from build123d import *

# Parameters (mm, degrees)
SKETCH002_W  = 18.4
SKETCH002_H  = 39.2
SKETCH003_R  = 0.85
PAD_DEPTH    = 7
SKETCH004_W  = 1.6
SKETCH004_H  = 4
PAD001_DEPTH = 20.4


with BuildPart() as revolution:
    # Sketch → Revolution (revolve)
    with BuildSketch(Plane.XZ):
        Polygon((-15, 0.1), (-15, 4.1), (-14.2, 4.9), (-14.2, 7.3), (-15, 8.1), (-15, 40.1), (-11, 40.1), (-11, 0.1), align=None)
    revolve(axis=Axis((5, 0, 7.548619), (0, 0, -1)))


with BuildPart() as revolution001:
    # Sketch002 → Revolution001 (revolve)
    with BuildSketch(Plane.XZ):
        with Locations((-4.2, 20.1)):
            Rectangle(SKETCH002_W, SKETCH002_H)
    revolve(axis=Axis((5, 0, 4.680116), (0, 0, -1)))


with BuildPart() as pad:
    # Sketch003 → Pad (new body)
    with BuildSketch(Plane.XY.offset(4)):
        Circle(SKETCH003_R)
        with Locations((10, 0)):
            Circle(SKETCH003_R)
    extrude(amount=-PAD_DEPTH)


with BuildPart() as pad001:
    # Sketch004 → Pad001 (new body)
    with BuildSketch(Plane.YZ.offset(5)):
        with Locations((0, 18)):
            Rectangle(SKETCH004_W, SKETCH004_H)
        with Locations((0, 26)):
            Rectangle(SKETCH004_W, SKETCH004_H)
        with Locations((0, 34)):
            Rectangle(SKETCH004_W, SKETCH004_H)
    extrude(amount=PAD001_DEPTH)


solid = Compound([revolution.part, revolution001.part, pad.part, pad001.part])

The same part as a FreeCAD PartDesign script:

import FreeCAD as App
import Part
import Sketcher
from FreeCAD import Vector
Q = App.Units.Quantity


def add_polygon(sketch, points):
    """Adds a closed chain of lines whose ends are joined by coincident constraints."""
    first, n = sketch.GeometryCount, len(points)
    for a, b in zip(points, points[1:] + points[:1]):
        sketch.addGeometry(Part.LineSegment(App.Vector(*a, 0), App.Vector(*b, 0)), False)
    for i in range(n):
        sketch.addConstraint(Sketcher.Constraint("Coincident", first + i, 2, first + (i + 1) % n, 1))

doc = App.newDocument("Part")
params = doc.addObject("Spreadsheet::Sheet", "Params")
for row, (alias, value) in enumerate([
    ("sketch1_width", "4 mm"),
    ("sketch1_height", "40 mm"),
    ("sketch1_height2", "32 mm"),
    ("sketch1_height3", "2.4 mm"),
    ("revolution_angle", "360 deg"),
    ("sketch2_width", "18.4 mm"),
    ("sketch2_height", "39.2 mm"),
    ("revolution2_angle", "360 deg"),
    ("sketch3_diameter", "1.7 mm"),
    ("pad1_length", "7 mm"),
    ("sketch4_height", "4 mm"),
    ("sketch4_width", "1.6 mm"),
    ("pad2_length", "20.4 mm"),
], start=1):
    params.set(f"A{row}", alias)
    params.set(f"B{row}", "=" + value)
    params.setAlias(f"B{row}", alias)

body = doc.addObject("PartDesign::Body", "Body")

# Sketch on XZ plane
sketch1 = body.newObject("Sketcher::SketchObject", "Sketch")
sketch1.AttachmentSupport = (doc.getObject("XZ_Plane"), [""])
sketch1.MapMode = "FlatFace"
add_polygon(sketch1, [(-15, 4.1), (-15, 0.1), (-11, 0.1), (-11, 40.1), (-15, 40.1), (-15, 8.1), (-14.2, 7.3), (-14.2, 4.9)])  # lines 0-7
sketch1.addGeometry(Part.LineSegment(Vector(5, 40.1, 0), Vector(5, 0.1, 0)), True)  # axis
sketch1.addConstraint([
    Sketcher.Constraint("Vertical", 0),
    Sketcher.Constraint("Horizontal", 1),
    Sketcher.Constraint("Vertical", 2),
    Sketcher.Constraint("Horizontal", 3),
    Sketcher.Constraint("Vertical", 4),
    Sketcher.Constraint("Vertical", 6),
    Sketcher.Constraint("Vertical", 8),
    Sketcher.Constraint("Perpendicular", 5, 7),
    Sketcher.Constraint("Horizontal", 3, 2, 8, 1),
    Sketcher.Constraint("Horizontal", 1, 2, 8, 2),
    Sketcher.Constraint("Vertical", 0, 2, 3, 2),
    Sketcher.Constraint("Equal", 3, 0),
    Sketcher.Constraint("Equal", 5, 7),
    Sketcher.Constraint("DistanceX", 1, 1, 1, 2, Q("4 mm")),
    Sketcher.Constraint("DistanceY", 2, 1, 2, 2, Q("40 mm")),
    Sketcher.Constraint("DistanceY", 4, 2, 4, 1, Q("32 mm")),
    Sketcher.Constraint("DistanceY", 6, 2, 6, 1, Q("2.4 mm")),
    Sketcher.Constraint("DistanceX", 0, 2, -1, 1, Q("15 mm")),
    Sketcher.Constraint("DistanceX", -1, 1, 8, 1, Q("5 mm")),
    Sketcher.Constraint("DistanceY", -1, 1, 0, 2, Q("0.1 mm")),
])
sketch1.setExpression("Constraints[21]", "Params.sketch1_width")
sketch1.setExpression("Constraints[22]", "Params.sketch1_height")
sketch1.setExpression("Constraints[23]", "Params.sketch1_height2")
sketch1.setExpression("Constraints[24]", "Params.sketch1_height3")
revolution = body.newObject("PartDesign::Revolution", "Revolution")
revolution.Profile = sketch1
revolution.ReferenceAxis = (sketch1, ["Axis0"])
revolution.setExpression("Angle", "Params.revolution_angle")
body2 = doc.addObject("PartDesign::Body", "Body001")

# Sketch on XZ plane
sketch2 = body2.newObject("Sketcher::SketchObject", "Sketch001")
sketch2.AttachmentSupport = (doc.getObject("XZ_Plane001"), [""])
sketch2.MapMode = "FlatFace"
add_polygon(sketch2, [(-13.4, 39.7), (-13.4, 0.5), (5, 0.5), (5, 39.7)])  # lines 0-3
sketch2.addGeometry(Part.LineSegment(Vector(5, 39.7, 0), Vector(5, 0.5, 0)), True)  # axis
sketch2.addConstraint([
    Sketcher.Constraint("Vertical", 0),
    Sketcher.Constraint("Horizontal", 1),
    Sketcher.Constraint("Vertical", 2),
    Sketcher.Constraint("Horizontal", 3),
    Sketcher.Constraint("Vertical", 4),
    Sketcher.Constraint("Coincident", 4, 1, 2, 2),
    Sketcher.Constraint("Horizontal", 0, 2, 4, 2),
    Sketcher.Constraint("DistanceX", 1, 1, 1, 2, Q("18.4 mm")),
    Sketcher.Constraint("DistanceY", 0, 2, 0, 1, Q("39.2 mm")),
    Sketcher.Constraint("DistanceX", -1, 1, 1, 2, Q("5 mm")),
    Sketcher.Constraint("DistanceY", -1, 1, 0, 2, Q("0.5 mm")),
])
sketch2.setExpression("Constraints[11]", "Params.sketch2_width")
sketch2.setExpression("Constraints[12]", "Params.sketch2_height")
revolution2 = body2.newObject("PartDesign::Revolution", "Revolution001")
revolution2.Profile = sketch2
revolution2.ReferenceAxis = (sketch2, ["Axis0"])
revolution2.setExpression("Angle", "Params.revolution2_angle")
body3 = doc.addObject("PartDesign::Body", "Body002")
body3.AllowCompound = True

# Sketch on XY plane
sketch3 = body3.newObject("Sketcher::SketchObject", "Sketch002")
sketch3.AttachmentSupport = (doc.getObject("XY_Plane002"), [""])
sketch3.MapMode = "FlatFace"
sketch3.AttachmentOffset = App.Placement(Vector(0, 0, 4), App.Rotation())
sketch3.addGeometry([
    Part.Circle(Vector(0, 0, 0), Vector(0, 0, 1), 0.85),
    Part.Circle(Vector(10, 0, 0), Vector(0, 0, 1), 0.85),
], False)
sketch3.addConstraint([
    Sketcher.Constraint("Coincident", 0, 3, -1, 1),
    Sketcher.Constraint("Equal", 0, 1),
    Sketcher.Constraint("PointOnObject", 1, 3, -1),
    Sketcher.Constraint("Diameter", 0, Q("1.7 mm")),
    Sketcher.Constraint("DistanceX", -1, 1, 1, 3, Q("10 mm")),
])
sketch3.setExpression("Constraints[3]", "Params.sketch3_diameter")
pad1 = body3.newObject("PartDesign::Pad", "Pad")
pad1.Profile = sketch3
pad1.setExpression("Length", "Params.pad1_length")
pad1.Reversed = True
body4 = doc.addObject("PartDesign::Body", "Body003")
body4.AllowCompound = True

# Sketch on YZ plane
sketch4 = body4.newObject("Sketcher::SketchObject", "Sketch003")
sketch4.AttachmentSupport = (doc.getObject("YZ_Plane003"), [""])
sketch4.MapMode = "FlatFace"
sketch4.AttachmentOffset = App.Placement(Vector(0, 0, 5), App.Rotation())
add_polygon(sketch4, [(-0.8, 20), (-0.8, 16), (0.8, 16), (0.8, 20)])  # lines 0-3
add_polygon(sketch4, [(-0.8, 28), (-0.8, 24), (0.8, 24), (0.8, 28)])  # lines 4-7
add_polygon(sketch4, [(-0.8, 36), (-0.8, 32), (0.8, 32), (0.8, 36)])  # lines 8-11
sketch4.addConstraint([
    Sketcher.Constraint("Vertical", 0),
    Sketcher.Constraint("Horizontal", 1),
    Sketcher.Constraint("Vertical", 2),
    Sketcher.Constraint("Horizontal", 3),
    Sketcher.Constraint("Vertical", 4),
    Sketcher.Constraint("Horizontal", 5),
    Sketcher.Constraint("Vertical", 6),
    Sketcher.Constraint("Horizontal", 7),
    Sketcher.Constraint("Vertical", 8),
    Sketcher.Constraint("Horizontal", 9),
    Sketcher.Constraint("Vertical", 10),
    Sketcher.Constraint("Horizontal", 11),
    Sketcher.Constraint("Vertical", 3, 2, 4, 2),
    Sketcher.Constraint("Vertical", 2, 2, 5, 2),
    Sketcher.Constraint("Vertical", 7, 2, 8, 2),
    Sketcher.Constraint("Vertical", 6, 2, 9, 2),
    Sketcher.Constraint("Equal", 2, 4),
    Sketcher.Constraint("Equal", 6, 8),
    Sketcher.Constraint("DistanceY", 0, 2, 0, 1, Q("4 mm")),
    Sketcher.Constraint("DistanceX", 1, 1, 1, 2, Q("1.6 mm")),
    Sketcher.Constraint("DistanceY", -1, 1, 0, 2, Q("16 mm")),
    Sketcher.Constraint("DistanceY", -1, 1, 4, 2, Q("24 mm")),
    Sketcher.Constraint("DistanceY", -1, 1, 8, 2, Q("32 mm")),
    Sketcher.Constraint("DistanceX", 0, 2, -1, 1, Q("0.8 mm")),
])
sketch4.setExpression("Constraints[30]", "Params.sketch4_height")
sketch4.setExpression("Constraints[31]", "Params.sketch4_width")
pad2 = body4.newObject("PartDesign::Pad", "Pad001")
pad2.Profile = sketch4
pad2.setExpression("Length", "Params.pad2_length")

doc.recompute()
